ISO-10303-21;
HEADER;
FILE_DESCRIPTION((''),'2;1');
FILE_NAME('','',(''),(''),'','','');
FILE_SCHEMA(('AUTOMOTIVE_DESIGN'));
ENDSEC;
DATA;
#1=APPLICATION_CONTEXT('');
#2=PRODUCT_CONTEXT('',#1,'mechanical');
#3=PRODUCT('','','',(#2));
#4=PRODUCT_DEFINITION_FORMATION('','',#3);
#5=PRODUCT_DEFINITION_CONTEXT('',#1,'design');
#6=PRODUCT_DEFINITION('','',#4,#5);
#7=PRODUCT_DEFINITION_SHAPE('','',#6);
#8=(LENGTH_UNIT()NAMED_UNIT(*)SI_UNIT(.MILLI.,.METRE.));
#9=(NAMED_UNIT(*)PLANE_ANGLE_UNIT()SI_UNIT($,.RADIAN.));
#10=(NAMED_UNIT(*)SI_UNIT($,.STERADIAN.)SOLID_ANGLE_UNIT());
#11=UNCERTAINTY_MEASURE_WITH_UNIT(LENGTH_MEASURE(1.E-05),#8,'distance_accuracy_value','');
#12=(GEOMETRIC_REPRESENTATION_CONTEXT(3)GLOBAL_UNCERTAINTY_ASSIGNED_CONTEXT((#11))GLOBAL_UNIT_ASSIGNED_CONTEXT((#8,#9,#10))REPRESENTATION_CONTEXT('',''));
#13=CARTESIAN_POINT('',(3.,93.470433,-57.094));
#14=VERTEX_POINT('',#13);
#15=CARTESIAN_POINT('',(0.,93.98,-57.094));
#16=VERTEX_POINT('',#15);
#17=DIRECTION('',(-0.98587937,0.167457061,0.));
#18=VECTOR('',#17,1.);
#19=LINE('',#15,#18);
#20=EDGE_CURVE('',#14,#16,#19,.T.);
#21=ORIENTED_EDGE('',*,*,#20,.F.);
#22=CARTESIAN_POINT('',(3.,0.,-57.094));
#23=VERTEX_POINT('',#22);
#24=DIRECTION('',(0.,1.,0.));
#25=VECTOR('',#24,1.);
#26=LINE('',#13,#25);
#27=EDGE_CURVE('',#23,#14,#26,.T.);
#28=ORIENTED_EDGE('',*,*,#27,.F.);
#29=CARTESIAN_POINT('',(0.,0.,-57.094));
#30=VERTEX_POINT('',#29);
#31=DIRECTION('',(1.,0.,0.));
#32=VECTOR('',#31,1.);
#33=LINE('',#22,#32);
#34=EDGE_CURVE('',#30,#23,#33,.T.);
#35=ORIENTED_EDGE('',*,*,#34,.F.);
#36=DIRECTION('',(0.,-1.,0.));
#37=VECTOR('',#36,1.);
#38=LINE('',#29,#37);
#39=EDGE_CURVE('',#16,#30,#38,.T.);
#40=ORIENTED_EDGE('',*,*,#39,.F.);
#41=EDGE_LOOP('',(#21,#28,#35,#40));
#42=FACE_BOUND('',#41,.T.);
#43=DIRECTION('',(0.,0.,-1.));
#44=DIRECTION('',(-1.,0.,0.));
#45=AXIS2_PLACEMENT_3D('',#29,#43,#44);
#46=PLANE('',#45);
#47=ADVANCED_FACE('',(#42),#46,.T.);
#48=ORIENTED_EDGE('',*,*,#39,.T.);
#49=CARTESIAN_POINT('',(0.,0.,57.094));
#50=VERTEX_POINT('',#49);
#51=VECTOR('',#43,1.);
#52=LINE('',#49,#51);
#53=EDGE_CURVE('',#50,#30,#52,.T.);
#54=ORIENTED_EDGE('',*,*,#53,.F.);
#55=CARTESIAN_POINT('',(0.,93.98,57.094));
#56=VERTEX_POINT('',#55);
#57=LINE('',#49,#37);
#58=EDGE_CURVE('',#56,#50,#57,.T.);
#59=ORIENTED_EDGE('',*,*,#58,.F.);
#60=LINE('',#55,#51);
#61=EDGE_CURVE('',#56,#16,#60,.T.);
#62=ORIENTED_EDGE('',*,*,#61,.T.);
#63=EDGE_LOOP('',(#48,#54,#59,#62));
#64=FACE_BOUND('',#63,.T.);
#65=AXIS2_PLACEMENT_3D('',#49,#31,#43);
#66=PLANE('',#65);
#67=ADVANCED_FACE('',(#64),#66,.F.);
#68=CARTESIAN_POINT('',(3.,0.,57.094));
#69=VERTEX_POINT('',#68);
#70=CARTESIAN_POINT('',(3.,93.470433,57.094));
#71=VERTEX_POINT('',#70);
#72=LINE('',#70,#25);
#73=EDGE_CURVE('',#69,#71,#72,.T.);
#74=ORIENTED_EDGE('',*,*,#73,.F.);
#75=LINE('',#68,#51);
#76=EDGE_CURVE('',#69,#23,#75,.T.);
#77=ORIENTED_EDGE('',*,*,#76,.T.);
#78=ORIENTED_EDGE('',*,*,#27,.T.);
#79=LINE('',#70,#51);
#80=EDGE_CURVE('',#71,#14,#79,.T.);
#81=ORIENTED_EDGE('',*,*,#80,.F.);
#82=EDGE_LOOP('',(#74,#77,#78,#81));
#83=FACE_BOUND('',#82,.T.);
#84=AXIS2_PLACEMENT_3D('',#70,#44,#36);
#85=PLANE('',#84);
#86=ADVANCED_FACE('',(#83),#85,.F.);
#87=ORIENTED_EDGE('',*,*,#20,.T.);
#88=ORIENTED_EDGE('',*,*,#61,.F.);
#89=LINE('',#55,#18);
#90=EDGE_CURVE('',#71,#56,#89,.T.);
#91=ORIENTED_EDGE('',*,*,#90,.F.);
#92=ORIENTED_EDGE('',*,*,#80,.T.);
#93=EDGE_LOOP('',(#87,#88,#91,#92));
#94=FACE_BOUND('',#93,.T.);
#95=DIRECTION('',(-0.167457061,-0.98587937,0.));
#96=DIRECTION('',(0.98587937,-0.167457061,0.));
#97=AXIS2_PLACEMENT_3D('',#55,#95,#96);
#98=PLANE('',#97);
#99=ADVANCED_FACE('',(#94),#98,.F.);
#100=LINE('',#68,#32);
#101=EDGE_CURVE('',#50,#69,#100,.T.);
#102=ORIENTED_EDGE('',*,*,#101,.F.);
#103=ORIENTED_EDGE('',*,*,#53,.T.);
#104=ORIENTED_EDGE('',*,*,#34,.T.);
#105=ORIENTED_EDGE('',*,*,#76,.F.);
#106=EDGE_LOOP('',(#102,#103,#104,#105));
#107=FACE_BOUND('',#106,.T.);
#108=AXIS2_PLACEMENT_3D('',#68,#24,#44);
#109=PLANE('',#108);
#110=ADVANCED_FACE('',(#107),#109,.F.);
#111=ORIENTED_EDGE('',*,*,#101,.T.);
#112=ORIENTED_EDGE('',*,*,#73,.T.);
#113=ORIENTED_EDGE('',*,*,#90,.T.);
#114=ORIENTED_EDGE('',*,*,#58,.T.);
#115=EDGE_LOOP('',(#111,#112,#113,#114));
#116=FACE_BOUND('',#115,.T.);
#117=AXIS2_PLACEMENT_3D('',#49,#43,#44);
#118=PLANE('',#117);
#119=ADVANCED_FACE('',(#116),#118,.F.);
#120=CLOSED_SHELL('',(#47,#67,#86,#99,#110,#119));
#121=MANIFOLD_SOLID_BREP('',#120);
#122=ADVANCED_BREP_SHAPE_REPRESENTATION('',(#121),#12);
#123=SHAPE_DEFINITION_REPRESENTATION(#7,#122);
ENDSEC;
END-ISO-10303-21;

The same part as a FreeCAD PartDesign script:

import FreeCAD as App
import Part
import Sketcher
Q = App.Units.Quantity


def add_polygon(sketch, points):
    """Adds a closed chain of lines whose ends are joined by coincident constraints."""
    first, n = sketch.GeometryCount, len(points)
    for a, b in zip(points, points[1:] + points[:1]):
        sketch.addGeometry(Part.LineSegment(App.Vector(*a, 0), App.Vector(*b, 0)), False)
    for i in range(n):
        sketch.addConstraint(Sketcher.Constraint("Coincident", first + i, 2, first + (i + 1) % n, 1))

doc = App.newDocument("Part")
body = doc.addObject("PartDesign::Body", "Body")

sketch1 = body.newObject("Sketcher::SketchObject", "Sketch")
sketch1.AttachmentSupport = (doc.getObject("XY_Plane"), [""])
sketch1.MapMode = "FlatFace"
add_polygon(sketch1, [(0, 94), (0, 0), (3, 0), (3, 93.5)])
sketch1.addConstraint(Sketcher.Constraint("Vertical", 0))
sketch1.addConstraint(Sketcher.Constraint("Horizontal", 1))
sketch1.addConstraint(Sketcher.Constraint("Vertical", 2))
sketch1.addConstraint(Sketcher.Constraint("Coincident", 0, 2, -1, 1))
sketch1.addConstraint(Sketcher.Constraint("DistanceX", 1, 1, 1, 2, Q("3 mm")))
sketch1.addConstraint(Sketcher.Constraint("DistanceY", 0, 2, 0, 1, Q("93.98 mm")))
sketch1.addConstraint(Sketcher.Constraint("Angle", 3, Q("170.36 deg")))
pad1 = body.newObject("PartDesign::Pad", "Pad")
pad1.Profile = sketch1
pad1.Length = 114.188
pad1.Midplane = True

doc.recompute()
